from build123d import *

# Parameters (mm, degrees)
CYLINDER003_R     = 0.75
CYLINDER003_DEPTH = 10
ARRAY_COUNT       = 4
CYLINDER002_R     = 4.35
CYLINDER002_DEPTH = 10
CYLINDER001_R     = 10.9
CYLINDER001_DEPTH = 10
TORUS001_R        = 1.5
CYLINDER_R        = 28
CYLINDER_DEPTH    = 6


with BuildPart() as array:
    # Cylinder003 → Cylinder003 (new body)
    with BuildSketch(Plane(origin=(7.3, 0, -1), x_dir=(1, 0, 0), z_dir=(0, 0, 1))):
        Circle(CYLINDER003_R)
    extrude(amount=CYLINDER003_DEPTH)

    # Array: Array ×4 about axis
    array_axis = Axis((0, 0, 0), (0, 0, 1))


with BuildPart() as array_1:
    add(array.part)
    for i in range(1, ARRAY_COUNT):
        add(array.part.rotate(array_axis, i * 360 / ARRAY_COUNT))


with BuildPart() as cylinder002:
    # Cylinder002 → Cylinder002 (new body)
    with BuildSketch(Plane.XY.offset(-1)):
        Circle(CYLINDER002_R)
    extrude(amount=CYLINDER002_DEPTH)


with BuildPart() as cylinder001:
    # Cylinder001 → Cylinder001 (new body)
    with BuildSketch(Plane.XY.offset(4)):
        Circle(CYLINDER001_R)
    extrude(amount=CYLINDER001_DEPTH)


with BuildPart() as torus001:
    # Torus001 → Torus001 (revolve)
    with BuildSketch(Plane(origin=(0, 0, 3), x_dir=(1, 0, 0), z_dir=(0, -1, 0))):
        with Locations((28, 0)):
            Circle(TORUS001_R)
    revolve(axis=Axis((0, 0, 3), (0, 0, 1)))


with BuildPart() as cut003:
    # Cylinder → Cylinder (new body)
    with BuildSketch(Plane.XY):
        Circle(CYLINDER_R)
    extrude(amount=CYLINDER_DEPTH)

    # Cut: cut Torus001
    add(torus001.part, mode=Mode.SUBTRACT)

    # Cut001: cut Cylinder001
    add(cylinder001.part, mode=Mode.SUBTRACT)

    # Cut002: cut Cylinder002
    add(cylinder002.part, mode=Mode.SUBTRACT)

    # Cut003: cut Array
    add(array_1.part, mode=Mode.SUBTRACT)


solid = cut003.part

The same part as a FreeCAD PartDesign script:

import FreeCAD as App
import Part
import Sketcher
Q = App.Units.Quantity

doc = App.newDocument("Part")
body = doc.addObject("PartDesign::Body", "Body")

# Sketch on XY plane
sketch1 = body.newObject("Sketcher::SketchObject", "Sketch")
sketch1.AttachmentSupport = (doc.getObject("XY_Plane"), [""])
sketch1.MapMode = "FlatFace"
sketch1.AttachmentOffset = App.Placement(App.Vector(0, 0, -1), App.Rotation())
sketch1.addGeometry(Part.Circle(App.Vector(7.3, 0, 0), App.Vector(0, 0, 1), 0.75), False)
sketch1.addConstraint([
    Sketcher.Constraint("PointOnObject", 0, 3, -1),
    Sketcher.Constraint("Diameter", 0, Q("1.5 mm")),
    Sketcher.Constraint("DistanceX", -1, 1, 0, 3, Q("7.3 mm")),
])
pad1 = body.newObject("PartDesign::Pad", "Pad")
pad1.Profile = sketch1
pad1.Length = 10
body2 = doc.addObject("PartDesign::Body", "Body001")
body2.AllowCompound = True
doc.recompute()

body2.BaseFeature = body
doc.recompute()

body3 = doc.addObject("PartDesign::Body", "Body002")
body3.BaseFeature = body
body3.Placement = App.Placement(App.Vector(0, 0, 0), App.Rotation(App.Vector(0, 0, 1), 90))
boolean = body2.newObject("PartDesign::Boolean", "Boolean")
boolean.Type = "Fuse"
boolean.addObjects([body3])
doc.recompute()

body4 = doc.addObject("PartDesign::Body", "Body003")
body4.BaseFeature = body
body4.Placement = App.Placement(App.Vector(0, 0, 0), App.Rotation(App.Vector(0, 0, 1), 180))
boolean2 = body2.newObject("PartDesign::Boolean", "Boolean001")
boolean2.Type = "Fuse"
boolean2.addObjects([body4])
doc.recompute()

body.Placement = App.Placement(App.Vector(0, 0, 0), App.Rotation(App.Vector(0, 0, 1), 270))
boolean3 = body2.newObject("PartDesign::Boolean", "Boolean002")
boolean3.Type = "Fuse"
boolean3.addObjects([body])
body5 = doc.addObject("PartDesign::Body", "Body004")

# Sketch on XY plane
sketch2 = body5.newObject("Sketcher::SketchObject", "Sketch001")
sketch2.AttachmentSupport = (doc.getObject("XY_Plane004"), [""])
sketch2.MapMode = "FlatFace"
sketch2.AttachmentOffset = App.Placement(App.Vector(0, 0, -1), App.Rotation())
sketch2.addGeometry(Part.Circle(App.Vector(0, 0, 0), App.Vector(0, 0, 1), 4.35), False)
sketch2.addConstraint([
    Sketcher.Constraint("Coincident", 0, 3, -1, 1),
    Sketcher.Constraint("Diameter", 0, Q("8.7 mm")),
])
pad2 = body5.newObject("PartDesign::Pad", "Pad001")
pad2.Profile = sketch2
pad2.Length = 10
body6 = doc.addObject("PartDesign::Body", "Body005")

# Sketch on XY plane
sketch3 = body6.newObject("Sketcher::SketchObject", "Sketch002")
sketch3.AttachmentSupport = (doc.getObject("XY_Plane005"), [""])
sketch3.MapMode = "FlatFace"
sketch3.AttachmentOffset = App.Placement(App.Vector(0, 0, 4), App.Rotation())
sketch3.addGeometry(Part.Circle(App.Vector(0, 0, 0), App.Vector(0, 0, 1), 10.9), False)
sketch3.addConstraint([
    Sketcher.Constraint("Coincident", 0, 3, -1, 1),
    Sketcher.Constraint("Diameter", 0, Q("21.8 mm")),
])
pad3 = body6.newObject("PartDesign::Pad", "Pad002")
pad3.Profile = sketch3
pad3.Length = 10
body7 = doc.addObject("PartDesign::Body", "Body006")

# Sketch on XZ plane
sketch4 = body7.newObject("Sketcher::SketchObject", "Sketch003")
sketch4.AttachmentSupport = (doc.getObject("XZ_Plane006"), [""])
sketch4.MapMode = "FlatFace"
sketch4.addGeometry(Part.Circle(App.Vector(28, 3, 0), App.Vector(0, 0, 1), 1.5), False)
sketch4.addConstraint([
    Sketcher.Constraint("Diameter", 0, Q("3 mm")),
    Sketcher.Constraint("DistanceX", -1, 1, 0, 3, Q("28 mm")),
    Sketcher.Constraint("DistanceY", -1, 1, 0, 3, Q("3 mm")),
])
revolution = body7.newObject("PartDesign::Revolution", "Revolution")
revolution.Profile = sketch4
revolution.ReferenceAxis = (sketch4, ["V_Axis"])
revolution.Angle = 360
body8 = doc.addObject("PartDesign::Body", "Body007")

# Sketch on XY plane
sketch5 = body8.newObject("Sketcher::SketchObject", "Sketch004")
sketch5.AttachmentSupport = (doc.getObject("XY_Plane007"), [""])
sketch5.MapMode = "FlatFace"
sketch5.addGeometry(Part.Circle(App.Vector(0, 0, 0), App.Vector(0, 0, 1), 28), False)
sketch5.addConstraint([
    Sketcher.Constraint("Coincident", 0, 3, -1, 1),
    Sketcher.Constraint("Diameter", 0, Q("56 mm")),
])
pad4 = body8.newObject("PartDesign::Pad", "Pad003")
pad4.Profile = sketch5
pad4.Length = 6
doc.recompute()

boolean4 = body8.newObject("PartDesign::Boolean", "Boolean003")
boolean4.Type = "Cut"
boolean4.addObjects([body7])
doc.recompute()

boolean5 = body8.newObject("PartDesign::Boolean", "Boolean004")
boolean5.Type = "Cut"
boolean5.addObjects([body6])
doc.recompute()

boolean6 = body8.newObject("PartDesign::Boolean", "Boolean005")
boolean6.Type = "Cut"
boolean6.addObjects([body5])
doc.recompute()

boolean7 = body8.newObject("PartDesign::Boolean", "Boolean006")
boolean7.Type = "Cut"
boolean7.addObjects([body2])

doc.recompute()
